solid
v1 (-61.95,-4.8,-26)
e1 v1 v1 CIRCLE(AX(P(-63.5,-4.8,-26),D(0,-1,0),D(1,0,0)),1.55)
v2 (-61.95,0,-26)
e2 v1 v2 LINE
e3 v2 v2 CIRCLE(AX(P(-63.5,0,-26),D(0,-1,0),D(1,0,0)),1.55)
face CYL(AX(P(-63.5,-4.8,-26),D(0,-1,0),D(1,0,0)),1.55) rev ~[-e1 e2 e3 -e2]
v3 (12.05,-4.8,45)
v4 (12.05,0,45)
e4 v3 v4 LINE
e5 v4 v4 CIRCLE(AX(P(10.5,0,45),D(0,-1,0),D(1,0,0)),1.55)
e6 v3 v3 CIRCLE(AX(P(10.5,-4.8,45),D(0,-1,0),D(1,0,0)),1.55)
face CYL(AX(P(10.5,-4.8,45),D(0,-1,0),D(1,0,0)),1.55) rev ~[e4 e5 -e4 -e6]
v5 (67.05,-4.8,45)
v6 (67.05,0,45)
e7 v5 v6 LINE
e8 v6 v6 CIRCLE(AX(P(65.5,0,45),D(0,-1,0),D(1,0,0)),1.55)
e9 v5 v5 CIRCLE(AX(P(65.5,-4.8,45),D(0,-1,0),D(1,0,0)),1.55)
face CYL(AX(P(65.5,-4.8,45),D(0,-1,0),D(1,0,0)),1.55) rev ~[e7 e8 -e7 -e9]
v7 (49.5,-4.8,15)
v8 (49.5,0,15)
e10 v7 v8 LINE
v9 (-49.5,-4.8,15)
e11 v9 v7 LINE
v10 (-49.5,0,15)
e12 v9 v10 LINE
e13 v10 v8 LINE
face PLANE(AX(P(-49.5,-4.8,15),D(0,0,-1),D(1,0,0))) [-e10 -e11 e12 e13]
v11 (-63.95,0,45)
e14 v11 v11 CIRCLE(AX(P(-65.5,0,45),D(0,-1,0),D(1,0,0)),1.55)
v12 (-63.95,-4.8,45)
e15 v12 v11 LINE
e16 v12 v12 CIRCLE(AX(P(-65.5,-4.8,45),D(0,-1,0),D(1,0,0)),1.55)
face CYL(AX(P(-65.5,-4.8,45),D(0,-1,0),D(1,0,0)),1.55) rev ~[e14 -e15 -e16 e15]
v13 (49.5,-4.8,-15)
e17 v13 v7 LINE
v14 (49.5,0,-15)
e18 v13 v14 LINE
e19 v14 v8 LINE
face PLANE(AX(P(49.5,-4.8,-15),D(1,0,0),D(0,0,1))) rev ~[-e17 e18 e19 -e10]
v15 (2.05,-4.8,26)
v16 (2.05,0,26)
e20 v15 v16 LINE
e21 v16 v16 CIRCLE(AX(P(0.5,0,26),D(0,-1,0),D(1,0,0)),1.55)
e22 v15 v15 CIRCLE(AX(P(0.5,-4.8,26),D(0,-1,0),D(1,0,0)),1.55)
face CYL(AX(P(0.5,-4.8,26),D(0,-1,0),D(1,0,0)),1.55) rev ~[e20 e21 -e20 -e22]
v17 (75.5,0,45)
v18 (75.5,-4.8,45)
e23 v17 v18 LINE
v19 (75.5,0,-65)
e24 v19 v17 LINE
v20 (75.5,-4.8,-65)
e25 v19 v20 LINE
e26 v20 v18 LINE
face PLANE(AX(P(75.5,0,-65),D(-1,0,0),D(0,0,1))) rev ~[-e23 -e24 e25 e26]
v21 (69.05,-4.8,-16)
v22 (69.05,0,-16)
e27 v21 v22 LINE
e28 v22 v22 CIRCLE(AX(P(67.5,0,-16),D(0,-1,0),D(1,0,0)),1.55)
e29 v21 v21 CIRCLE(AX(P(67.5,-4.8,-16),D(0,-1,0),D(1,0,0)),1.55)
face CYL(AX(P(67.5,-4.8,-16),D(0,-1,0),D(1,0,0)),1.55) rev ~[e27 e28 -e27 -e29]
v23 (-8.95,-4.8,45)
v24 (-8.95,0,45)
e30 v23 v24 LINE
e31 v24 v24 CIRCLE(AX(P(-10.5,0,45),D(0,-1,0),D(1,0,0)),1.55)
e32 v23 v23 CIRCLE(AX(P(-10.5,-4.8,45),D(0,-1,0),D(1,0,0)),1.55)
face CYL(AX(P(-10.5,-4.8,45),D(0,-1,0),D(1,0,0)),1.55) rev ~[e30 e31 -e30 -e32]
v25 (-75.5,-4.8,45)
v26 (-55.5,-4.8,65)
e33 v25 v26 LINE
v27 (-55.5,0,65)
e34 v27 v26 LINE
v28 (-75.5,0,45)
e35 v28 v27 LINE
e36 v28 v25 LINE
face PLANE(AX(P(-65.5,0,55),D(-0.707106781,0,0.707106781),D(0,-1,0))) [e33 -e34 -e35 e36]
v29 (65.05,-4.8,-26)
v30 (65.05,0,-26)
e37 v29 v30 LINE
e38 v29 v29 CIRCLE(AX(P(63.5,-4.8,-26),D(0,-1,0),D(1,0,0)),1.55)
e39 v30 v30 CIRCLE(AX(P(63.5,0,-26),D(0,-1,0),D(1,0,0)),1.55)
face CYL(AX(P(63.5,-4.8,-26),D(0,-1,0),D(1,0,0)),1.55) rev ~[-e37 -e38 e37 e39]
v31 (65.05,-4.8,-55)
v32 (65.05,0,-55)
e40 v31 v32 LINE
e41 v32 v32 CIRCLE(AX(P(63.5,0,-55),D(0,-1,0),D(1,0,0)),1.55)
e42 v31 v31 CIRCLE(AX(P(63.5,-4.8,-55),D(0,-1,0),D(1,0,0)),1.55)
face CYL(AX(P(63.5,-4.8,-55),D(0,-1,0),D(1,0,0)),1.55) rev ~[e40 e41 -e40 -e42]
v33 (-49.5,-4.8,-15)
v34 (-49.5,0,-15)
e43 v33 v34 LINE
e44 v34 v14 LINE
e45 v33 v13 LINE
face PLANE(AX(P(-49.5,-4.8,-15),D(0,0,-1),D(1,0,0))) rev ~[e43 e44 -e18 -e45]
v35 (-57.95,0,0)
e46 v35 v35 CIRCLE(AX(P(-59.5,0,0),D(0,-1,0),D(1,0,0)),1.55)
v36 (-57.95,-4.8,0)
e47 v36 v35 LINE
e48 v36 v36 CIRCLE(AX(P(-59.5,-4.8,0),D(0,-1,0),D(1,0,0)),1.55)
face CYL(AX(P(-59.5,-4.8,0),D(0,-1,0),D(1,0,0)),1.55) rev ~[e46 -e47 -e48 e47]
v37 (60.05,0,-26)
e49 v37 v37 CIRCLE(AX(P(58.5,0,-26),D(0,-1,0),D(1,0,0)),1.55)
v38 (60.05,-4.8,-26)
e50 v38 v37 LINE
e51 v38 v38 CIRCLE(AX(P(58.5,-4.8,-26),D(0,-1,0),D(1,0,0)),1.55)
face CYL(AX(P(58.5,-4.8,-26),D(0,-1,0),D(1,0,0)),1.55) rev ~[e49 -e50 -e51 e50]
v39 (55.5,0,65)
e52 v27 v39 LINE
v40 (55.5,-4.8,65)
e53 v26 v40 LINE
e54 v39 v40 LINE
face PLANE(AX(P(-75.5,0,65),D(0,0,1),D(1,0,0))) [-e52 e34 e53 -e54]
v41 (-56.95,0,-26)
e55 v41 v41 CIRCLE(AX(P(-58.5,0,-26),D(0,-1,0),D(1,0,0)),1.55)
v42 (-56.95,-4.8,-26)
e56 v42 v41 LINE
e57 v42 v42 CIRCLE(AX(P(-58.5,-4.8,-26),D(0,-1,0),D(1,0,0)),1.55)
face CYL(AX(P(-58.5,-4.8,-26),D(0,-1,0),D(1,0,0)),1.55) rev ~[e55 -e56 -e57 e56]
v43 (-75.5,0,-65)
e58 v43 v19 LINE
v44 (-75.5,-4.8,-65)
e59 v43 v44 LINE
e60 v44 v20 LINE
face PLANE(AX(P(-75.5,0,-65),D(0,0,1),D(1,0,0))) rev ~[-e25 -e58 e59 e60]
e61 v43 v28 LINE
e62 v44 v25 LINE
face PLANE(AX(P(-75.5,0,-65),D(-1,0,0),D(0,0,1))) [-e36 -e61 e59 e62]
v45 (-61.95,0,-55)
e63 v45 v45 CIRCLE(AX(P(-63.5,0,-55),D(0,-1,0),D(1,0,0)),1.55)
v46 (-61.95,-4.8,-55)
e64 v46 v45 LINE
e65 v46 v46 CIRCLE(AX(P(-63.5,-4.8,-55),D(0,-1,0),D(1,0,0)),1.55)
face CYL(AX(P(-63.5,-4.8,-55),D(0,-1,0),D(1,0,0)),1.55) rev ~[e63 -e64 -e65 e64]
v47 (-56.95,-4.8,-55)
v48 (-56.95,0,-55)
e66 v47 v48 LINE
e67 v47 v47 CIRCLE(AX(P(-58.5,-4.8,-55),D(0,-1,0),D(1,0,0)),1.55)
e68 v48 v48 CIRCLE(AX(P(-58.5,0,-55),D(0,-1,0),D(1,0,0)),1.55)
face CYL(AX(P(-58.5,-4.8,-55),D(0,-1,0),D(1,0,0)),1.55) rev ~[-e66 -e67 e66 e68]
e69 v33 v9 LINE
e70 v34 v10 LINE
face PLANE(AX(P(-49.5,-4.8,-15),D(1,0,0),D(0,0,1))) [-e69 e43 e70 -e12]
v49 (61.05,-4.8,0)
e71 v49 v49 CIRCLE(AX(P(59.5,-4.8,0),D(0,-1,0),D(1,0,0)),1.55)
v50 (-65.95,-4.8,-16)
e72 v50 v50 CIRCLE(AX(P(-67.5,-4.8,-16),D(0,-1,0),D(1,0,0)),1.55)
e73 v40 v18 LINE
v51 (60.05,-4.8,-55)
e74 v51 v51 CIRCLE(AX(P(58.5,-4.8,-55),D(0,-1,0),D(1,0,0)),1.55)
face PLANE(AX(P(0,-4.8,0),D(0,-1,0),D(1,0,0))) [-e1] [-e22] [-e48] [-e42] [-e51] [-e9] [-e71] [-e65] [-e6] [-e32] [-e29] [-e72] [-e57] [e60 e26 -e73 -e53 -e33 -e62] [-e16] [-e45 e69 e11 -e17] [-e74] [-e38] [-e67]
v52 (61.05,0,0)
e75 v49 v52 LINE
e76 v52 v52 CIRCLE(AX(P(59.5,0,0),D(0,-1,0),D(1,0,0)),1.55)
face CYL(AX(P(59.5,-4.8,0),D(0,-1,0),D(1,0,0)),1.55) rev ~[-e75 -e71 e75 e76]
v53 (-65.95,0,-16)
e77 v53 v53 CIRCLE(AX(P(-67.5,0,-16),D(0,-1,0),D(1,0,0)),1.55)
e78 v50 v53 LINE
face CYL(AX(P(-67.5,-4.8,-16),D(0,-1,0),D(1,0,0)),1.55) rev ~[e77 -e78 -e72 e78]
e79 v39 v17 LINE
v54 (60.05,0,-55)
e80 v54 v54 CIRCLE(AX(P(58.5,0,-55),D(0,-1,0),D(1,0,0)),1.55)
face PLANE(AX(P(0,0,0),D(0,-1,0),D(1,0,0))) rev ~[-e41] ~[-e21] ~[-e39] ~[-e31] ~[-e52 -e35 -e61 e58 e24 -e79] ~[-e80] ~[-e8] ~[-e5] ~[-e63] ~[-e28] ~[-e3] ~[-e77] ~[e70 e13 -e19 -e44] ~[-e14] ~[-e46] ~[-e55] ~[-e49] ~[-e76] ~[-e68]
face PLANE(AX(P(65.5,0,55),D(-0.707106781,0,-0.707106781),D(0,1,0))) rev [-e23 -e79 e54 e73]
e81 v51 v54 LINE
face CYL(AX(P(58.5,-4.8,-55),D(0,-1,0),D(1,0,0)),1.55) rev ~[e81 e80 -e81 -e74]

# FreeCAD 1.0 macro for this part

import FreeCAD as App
import Part
import Sketcher
from FreeCAD import Vector


def edges_at(feature, points):
    """Names of the edges that pass closest to the given points."""
    edges = feature.Shape.Edges
    near = lambda p: min(range(len(edges)), key=lambda i: edges[i].distToShape(Part.Vertex(*p))[0])
    return sorted({f"Edge{near(p) + 1}" for p in points})


def add_polygon(sketch, points):
    """Adds a closed chain of lines whose ends are joined by coincident constraints."""
    first, n = sketch.GeometryCount, len(points)
    for a, b in zip(points, points[1:] + points[:1]):
        sketch.addGeometry(Part.LineSegment(App.Vector(*a, 0), App.Vector(*b, 0)), False)
    for i in range(n):
        sketch.addConstraint(Sketcher.Constraint("Coincident", first + i, 2, first + (i + 1) % n, 1))

doc = App.newDocument("Part")
body = doc.addObject("PartDesign::Body", "Body")

sketch1 = body.newObject("Sketcher::SketchObject", "Sketch")
sketch1.AttachmentSupport = (doc.getObject("XZ_Plane"), [""])
sketch1.MapMode = "FlatFace"
add_polygon(sketch1, [(-76, 65), (-76, -65), (76, -65), (76, 65)])
sketch1.addConstraint([
    Sketcher.Constraint("Vertical", 0),
    Sketcher.Constraint("Horizontal", 1),
    Sketcher.Constraint("Vertical", 2),
    Sketcher.Constraint("Horizontal", 3),
    Sketcher.Constraint("Symmetric", 0, 2, 2, 2, -1, 1),
    Sketcher.Constraint("DistanceX", 1, 1, 1, 2, 151.0),
    Sketcher.Constraint("DistanceY", 0, 2, 0, 1, 130.0),
])
pad1 = body.newObject("PartDesign::Pad", "Pad")
pad1.Profile = sketch1
pad1.Length = 4.8

sketch2 = body.newObject("Sketcher::SketchObject", "Sketch001")
sketch2.AttachmentSupport = (doc.getObject("XZ_Plane"), [""])
sketch2.MapMode = "FlatFace"
sketch2.AttachmentOffset = App.Placement(Vector(0, 0, 4.8), App.Rotation())
add_polygon(sketch2, [(-49.5, 15), (-49.5, -15), (49.5, -15), (49.5, 15)])
sketch2.addGeometry(Part.Circle(Vector(-59.5, 0, 0), Vector(0, 0, 1), 1.6), False)
sketch2.addGeometry(Part.Circle(Vector(59.5, 0, 0), Vector(0, 0, 1), 1.6), False)
sketch2.addGeometry(Part.Circle(Vector(-63.5, -55, 0), Vector(0, 0, 1), 1.6), False)
sketch2.addGeometry(Part.Circle(Vector(63.5, -55, 0), Vector(0, 0, 1), 1.6), False)
sketch2.addGeometry(Part.Circle(Vector(-58.5, -55, 0), Vector(0, 0, 1), 1.6), False)
sketch2.addGeometry(Part.Circle(Vector(58.5, -55, 0), Vector(0, 0, 1), 1.6), False)
sketch2.addGeometry(Part.Circle(Vector(-63.5, -26, 0), Vector(0, 0, 1), 1.6), False)
sketch2.addGeometry(Part.Circle(Vector(-58.5, -26, 0), Vector(0, 0, 1), 1.6), False)
sketch2.addGeometry(Part.Circle(Vector(63.5, -26, 0), Vector(0, 0, 1), 1.6), False)
sketch2.addGeometry(Part.Circle(Vector(58.5, -26, 0), Vector(0, 0, 1), 1.6), False)
sketch2.addGeometry(Part.Circle(Vector(65.5, 45, 0), Vector(0, 0, 1), 1.6), False)
sketch2.addGeometry(Part.Circle(Vector(-65.5, 45, 0), Vector(0, 0, 1), 1.6), False)
sketch2.addGeometry(Part.Circle(Vector(67.5, -16, 0), Vector(0, 0, 1), 1.6), False)
sketch2.addGeometry(Part.Circle(Vector(-67.5, -16, 0), Vector(0, 0, 1), 1.6), False)
sketch2.addGeometry(Part.Circle(Vector(10.5, 45, 0), Vector(0, 0, 1), 1.6), False)
sketch2.addGeometry(Part.Circle(Vector(-10.5, 45, 0), Vector(0, 0, 1), 1.6), False)
sketch2.addGeometry(Part.Circle(Vector(0.5, 26, 0), Vector(0, 0, 1), 1.6), False)
sketch2.addConstraint([
    Sketcher.Constraint("Vertical", 0),
    Sketcher.Constraint("Horizontal", 1),
    Sketcher.Constraint("Vertical", 2),
    Sketcher.Constraint("Horizontal", 3),
    Sketcher.Constraint("Equal", 4, 5),
    Sketcher.Constraint("Equal", 5, 6),
    Sketcher.Constraint("Equal", 6, 7),
    Sketcher.Constraint("Equal", 7, 8),
    Sketcher.Constraint("Equal", 8, 9),
    Sketcher.Constraint("Equal", 9, 10),
    Sketcher.Constraint("Equal", 10, 11),
    Sketcher.Constraint("Equal", 11, 12),
    Sketcher.Constraint("Equal", 12, 13),
    Sketcher.Constraint("Equal", 13, 14),
    Sketcher.Constraint("Equal", 14, 15),
    Sketcher.Constraint("Equal", 15, 16),
    Sketcher.Constraint("Equal", 16, 17),
    Sketcher.Constraint("Equal", 17, 18),
    Sketcher.Constraint("Equal", 18, 19),
    Sketcher.Constraint("Equal", 19, 20),
    Sketcher.Constraint("Symmetric", 4, 3, 5, 3, -1, 1),
    Sketcher.Constraint("Symmetric", 0, 2, 2, 2, -1, 1),
    Sketcher.Constraint("Symmetric", 6, 3, 7, 3, -2),
    Sketcher.Constraint("Symmetric", 8, 3, 9, 3, -2),
    Sketcher.Constraint("Symmetric", 10, 3, 12, 3, -2),
    Sketcher.Constraint("Symmetric", 11, 3, 13, 3, -2),
    Sketcher.Constraint("Symmetric", 14, 3, 15, 3, -2),
    Sketcher.Constraint("Symmetric", 16, 3, 17, 3, -2),
    Sketcher.Constraint("Symmetric", 18, 3, 19, 3, -2),
    Sketcher.Constraint("PointOnObject", 4, 3, -1),
    Sketcher.Constraint("Horizontal", 7, 3, 8, 3),
    Sketcher.Constraint("Horizontal", 10, 3, 11, 3),
    Sketcher.Constraint("Horizontal", 15, 3, 18, 3),
    Sketcher.Constraint("Vertical", 6, 3, 10, 3),
    Sketcher.Constraint("Vertical", 8, 3, 11, 3),
    Sketcher.Constraint("Diameter", 4, 3.1),
    Sketcher.Constraint("DistanceX", 1, 1, 1, 2, 99.0),
    Sketcher.Constraint("DistanceY", 0, 2, 0, 1, 30.0),
    Sketcher.Constraint("DistanceY", 6, 3, -1, 1, 55.0),
    Sketcher.Constraint("DistanceY", 10, 3, -1, 1, 26.0),
    Sketcher.Constraint("DistanceY", -1, 1, 14, 3, 45.0),
    Sketcher.Constraint("DistanceY", 16, 3, -1, 1, 16.0),
    Sketcher.Constraint("DistanceY", -1, 1, 20, 3, 26.0),
    Sketcher.Constraint("DistanceX", 4, 3, 5, 3, 119.0),
    Sketcher.Constraint("DistanceX", 6, 3, 4, 3, 4.0),
    Sketcher.Constraint("DistanceX", 6, 3, 8, 3, 5.0),
    Sketcher.Constraint("DistanceX", 5, 3, 14, 3, 6.0),
    Sketcher.Constraint("DistanceX", 12, 3, 16, 3, 4.0),
    Sketcher.Constraint("DistanceX", 18, 3, 14, 3, 55.0),
    Sketcher.Constraint("DistanceX", 20, 3, 18, 3, 10.0),
])
pocket1 = body.newObject("PartDesign::Pocket", "Pocket")
pocket1.Profile = sketch2
pocket1.Length = 4.8
doc.recompute()

chamfer = body.newObject("PartDesign::Chamfer", "Chamfer")
chamfer.Base = (pocket1, edges_at(pocket1, [(-75.5, -2.4, 65)]))
chamfer.Size = 20
doc.recompute()

chamfer2 = body.newObject("PartDesign::Chamfer", "Chamfer001")
chamfer2.Base = (chamfer, edges_at(chamfer, [(75.5, -2.4, 65)]))
chamfer2.Size = 20

doc.recompute()
